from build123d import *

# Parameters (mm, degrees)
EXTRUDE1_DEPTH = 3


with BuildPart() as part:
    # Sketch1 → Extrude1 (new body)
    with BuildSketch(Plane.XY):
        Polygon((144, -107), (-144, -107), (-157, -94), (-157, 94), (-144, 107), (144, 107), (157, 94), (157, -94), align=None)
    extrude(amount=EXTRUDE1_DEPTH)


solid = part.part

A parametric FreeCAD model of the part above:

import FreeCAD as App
import Part
import Sketcher


def add_polygon(sketch, points):
    """Adds a closed chain of lines whose ends are joined by coincident constraints."""
    first, n = sketch.GeometryCount, len(points)
    for a, b in zip(points, points[1:] + points[:1]):
        sketch.addGeometry(Part.LineSegment(App.Vector(*a, 0), App.Vector(*b, 0)), False)
    for i in range(n):
        sketch.addConstraint(Sketcher.Constraint("Coincident", first + i, 2, first + (i + 1) % n, 1))

doc = App.newDocument("Part")
params = doc.addObject("Spreadsheet::Sheet", "Params")
for row, (alias, value) in enumerate([
    ("sketch1_width", "288 mm"),
    ("sketch1_height", "188 mm"),
    ("pad1_length", "3 mm"),
], start=1):
    params.set(f"A{row}", alias)
    params.set(f"B{row}", "=" + value)
    params.setAlias(f"B{row}", alias)

body = doc.addObject("PartDesign::Body", "Body")

# Sketch on XY plane
sketch1 = doc.addObject("Sketcher::SketchObject", "Sketch")
body.addObject(sketch1)
sketch1.AttachmentSupport = (doc.XY_Plane, [""])
sketch1.MapMode = "FlatFace"
add_polygon(sketch1, [(-144, -107), (144, -107), (157, -94), (157, 94), (144, 107), (-144, 107), (-157, 94), (-157, -94)])  # lines 0-7
sketch1.addConstraint([
    Sketcher.Constraint("Horizontal", 0),
    Sketcher.Constraint("Vertical", 2),
    Sketcher.Constraint("Horizontal", 4),
    Sketcher.Constraint("Vertical", 6),
    Sketcher.Constraint("Symmetric", 0, 2, 4, 2, -1, 1),
    Sketcher.Constraint("Symmetric", 1, 2, 5, 2, -1, 1),
    Sketcher.Constraint("Perpendicular", 1, 3),
    Sketcher.Constraint("Perpendicular", 5, 7),
    Sketcher.Constraint("Horizontal", 2, 2, 5, 2),
    Sketcher.Constraint("Horizontal", 1, 2, 6, 2),
    Sketcher.Constraint("Vertical", 0, 2, 3, 2),
    Sketcher.Constraint("DistanceX", 0, 1, 0, 2, 288.0),
    Sketcher.Constraint("DistanceY", 2, 1, 2, 2, 188.0),
    Sketcher.Constraint("DistanceY", 0, 2, -1, 1, 107.0),
])
sketch1.setExpression("Constraints[19]", "Params.sketch1_width")
sketch1.setExpression("Constraints[20]", "Params.sketch1_height")
pad1 = doc.addObject("PartDesign::Pad", "Pad")
body.addObject(pad1)
pad1.Profile = sketch1
pad1.setExpression("Length", "Params.pad1_length")

doc.recompute()
